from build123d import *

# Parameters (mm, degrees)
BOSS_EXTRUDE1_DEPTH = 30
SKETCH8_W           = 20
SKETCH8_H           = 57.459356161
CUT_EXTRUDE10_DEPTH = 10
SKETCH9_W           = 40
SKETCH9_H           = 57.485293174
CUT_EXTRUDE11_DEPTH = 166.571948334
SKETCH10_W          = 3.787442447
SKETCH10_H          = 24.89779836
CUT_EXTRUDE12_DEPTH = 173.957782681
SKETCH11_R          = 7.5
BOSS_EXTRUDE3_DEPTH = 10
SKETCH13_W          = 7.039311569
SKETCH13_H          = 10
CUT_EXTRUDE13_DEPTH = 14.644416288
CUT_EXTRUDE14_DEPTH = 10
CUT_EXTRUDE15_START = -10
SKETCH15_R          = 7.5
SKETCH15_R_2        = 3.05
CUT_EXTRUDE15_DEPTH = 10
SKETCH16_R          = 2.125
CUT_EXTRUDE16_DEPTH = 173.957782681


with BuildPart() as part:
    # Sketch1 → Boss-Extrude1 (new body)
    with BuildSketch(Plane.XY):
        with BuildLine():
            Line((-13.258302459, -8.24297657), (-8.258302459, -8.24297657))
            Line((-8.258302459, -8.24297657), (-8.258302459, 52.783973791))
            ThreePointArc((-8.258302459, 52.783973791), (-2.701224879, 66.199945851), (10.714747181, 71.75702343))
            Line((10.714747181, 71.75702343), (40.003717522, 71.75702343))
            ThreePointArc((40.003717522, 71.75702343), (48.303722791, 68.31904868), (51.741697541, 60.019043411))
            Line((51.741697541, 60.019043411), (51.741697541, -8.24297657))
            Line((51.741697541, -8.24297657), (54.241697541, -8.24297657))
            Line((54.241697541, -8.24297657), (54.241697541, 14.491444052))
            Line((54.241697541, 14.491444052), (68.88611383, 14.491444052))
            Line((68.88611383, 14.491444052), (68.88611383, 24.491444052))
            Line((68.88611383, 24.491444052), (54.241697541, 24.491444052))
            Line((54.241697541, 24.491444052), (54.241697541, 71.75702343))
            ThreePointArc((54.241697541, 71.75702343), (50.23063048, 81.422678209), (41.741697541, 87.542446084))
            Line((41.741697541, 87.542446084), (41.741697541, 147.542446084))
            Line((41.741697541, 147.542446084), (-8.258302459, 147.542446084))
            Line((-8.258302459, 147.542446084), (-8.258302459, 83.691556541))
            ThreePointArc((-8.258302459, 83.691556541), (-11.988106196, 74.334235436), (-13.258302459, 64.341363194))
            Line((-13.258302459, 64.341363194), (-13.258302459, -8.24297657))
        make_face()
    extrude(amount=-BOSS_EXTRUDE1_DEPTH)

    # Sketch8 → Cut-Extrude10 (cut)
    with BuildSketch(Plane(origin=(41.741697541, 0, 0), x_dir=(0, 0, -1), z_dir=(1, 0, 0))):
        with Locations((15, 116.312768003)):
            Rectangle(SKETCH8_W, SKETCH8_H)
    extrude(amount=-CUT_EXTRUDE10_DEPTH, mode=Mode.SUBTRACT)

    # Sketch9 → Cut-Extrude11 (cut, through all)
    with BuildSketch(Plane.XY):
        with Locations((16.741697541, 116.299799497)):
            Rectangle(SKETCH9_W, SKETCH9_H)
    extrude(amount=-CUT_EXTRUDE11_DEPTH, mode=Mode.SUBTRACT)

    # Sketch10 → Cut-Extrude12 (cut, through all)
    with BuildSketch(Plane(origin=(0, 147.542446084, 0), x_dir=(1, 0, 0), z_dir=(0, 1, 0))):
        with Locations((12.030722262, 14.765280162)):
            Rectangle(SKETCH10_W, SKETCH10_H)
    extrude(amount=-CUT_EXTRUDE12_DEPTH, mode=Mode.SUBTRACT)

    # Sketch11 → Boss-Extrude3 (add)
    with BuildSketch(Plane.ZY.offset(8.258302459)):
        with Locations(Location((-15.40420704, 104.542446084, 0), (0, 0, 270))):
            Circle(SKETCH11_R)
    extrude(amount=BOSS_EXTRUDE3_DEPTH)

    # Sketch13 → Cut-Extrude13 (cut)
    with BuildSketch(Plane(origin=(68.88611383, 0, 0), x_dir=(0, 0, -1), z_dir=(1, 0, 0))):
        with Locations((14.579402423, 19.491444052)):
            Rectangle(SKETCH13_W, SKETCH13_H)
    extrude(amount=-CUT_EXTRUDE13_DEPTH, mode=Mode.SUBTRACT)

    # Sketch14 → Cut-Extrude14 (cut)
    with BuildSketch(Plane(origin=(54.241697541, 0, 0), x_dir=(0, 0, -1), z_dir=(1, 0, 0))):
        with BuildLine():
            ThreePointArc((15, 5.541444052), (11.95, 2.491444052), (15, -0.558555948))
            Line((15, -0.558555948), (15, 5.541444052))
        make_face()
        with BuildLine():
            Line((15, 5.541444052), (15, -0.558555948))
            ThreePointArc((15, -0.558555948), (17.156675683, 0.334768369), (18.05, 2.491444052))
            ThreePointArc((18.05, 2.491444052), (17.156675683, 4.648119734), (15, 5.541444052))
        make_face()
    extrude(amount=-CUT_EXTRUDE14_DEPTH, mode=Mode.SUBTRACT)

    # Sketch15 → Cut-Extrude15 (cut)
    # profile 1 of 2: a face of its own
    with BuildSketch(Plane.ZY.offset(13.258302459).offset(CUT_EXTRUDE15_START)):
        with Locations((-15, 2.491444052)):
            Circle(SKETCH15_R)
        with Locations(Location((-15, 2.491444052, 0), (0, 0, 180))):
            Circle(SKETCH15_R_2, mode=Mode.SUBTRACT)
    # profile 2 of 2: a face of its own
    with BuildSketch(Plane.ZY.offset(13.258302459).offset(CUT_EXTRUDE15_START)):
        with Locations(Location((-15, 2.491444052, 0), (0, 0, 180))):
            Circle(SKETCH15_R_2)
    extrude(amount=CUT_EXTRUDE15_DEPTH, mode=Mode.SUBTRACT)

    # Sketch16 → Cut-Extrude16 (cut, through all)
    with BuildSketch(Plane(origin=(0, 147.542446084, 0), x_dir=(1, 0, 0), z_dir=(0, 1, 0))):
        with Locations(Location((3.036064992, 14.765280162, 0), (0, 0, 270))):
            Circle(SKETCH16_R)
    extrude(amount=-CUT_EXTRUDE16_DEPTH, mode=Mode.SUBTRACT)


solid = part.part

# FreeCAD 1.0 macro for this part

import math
import FreeCAD as App
import Part
import Sketcher
from FreeCAD import Vector
Q = App.Units.Quantity

doc = App.newDocument("Part")
body = doc.addObject("PartDesign::Body", "Body")

# Sketch on XY plane
sketch1 = body.newObject("Sketcher::SketchObject", "Sketch")
sketch1.AttachmentSupport = (doc.getObject("XY_Plane"), [""])
sketch1.MapMode = "FlatFace"
sketch1.addGeometry([
    Part.LineSegment(Vector(-13.3, -8.2, 0), Vector(-8.3, -8.2, 0)),  # 0
    Part.LineSegment(Vector(-8.3, -8.2, 0), Vector(-8.3, 52.8, 0)),  # 1
    Part.ArcOfCircle(Part.Circle(Vector(10.7, 52.8, 0), Vector(0, 0, 1), 19), math.radians(90), math.radians(180)),  # 2
    Part.LineSegment(Vector(10.7, 71.8, 0), Vector(40, 71.8, 0)),  # 3
    Part.ArcOfCircle(Part.Circle(Vector(40, 60, 0), Vector(0, 0, 1), 11.7), math.radians(0), math.radians(90)),  # 4
    Part.LineSegment(Vector(51.7, 60, 0), Vector(51.7, -8.2, 0)),  # 5
    Part.LineSegment(Vector(51.7, -8.2, 0), Vector(54.2, -8.2, 0)),  # 6
    Part.LineSegment(Vector(54.2, -8.2, 0), Vector(54.2, 14.5, 0)),  # 7
    Part.LineSegment(Vector(54.2, 14.5, 0), Vector(68.9, 14.5, 0)),  # 8
    Part.LineSegment(Vector(68.9, 14.5, 0), Vector(68.9, 24.5, 0)),  # 9
    Part.LineSegment(Vector(68.9, 24.5, 0), Vector(54.2, 24.5, 0)),  # 10
    Part.LineSegment(Vector(54.2, 24.5, 0), Vector(54.2, 71.8, 0)),  # 11
    Part.ArcOfCircle(Part.Circle(Vector(35.2, 69.5, 0), Vector(0, 0, 1), 19.2), math.radians(7), math.radians(70)),  # 12
    Part.LineSegment(Vector(41.7, 87.5, 0), Vector(41.7, 147.5, 0)),  # 13
    Part.LineSegment(Vector(41.7, 147.5, 0), Vector(-8.3, 147.5, 0)),  # 14
    Part.LineSegment(Vector(-8.3, 147.5, 0), Vector(-8.3, 83.7, 0)),  # 15
    Part.ArcOfCircle(Part.Circle(Vector(26.7, 64.3, 0), Vector(0, 0, 1), 39.9), math.radians(151), math.radians(180)),  # 16
    Part.LineSegment(Vector(-13.3, 64.3, 0), Vector(-13.3, -8.2, 0)),  # 17
], False)
sketch1.addConstraint([
    Sketcher.Constraint("Coincident", 0, 2, 1, 1),
    Sketcher.Constraint("Tangent", 1, 2, 2, 2),
    Sketcher.Constraint("Tangent", 2, 1, 3, 1),
    Sketcher.Constraint("Tangent", 3, 2, 4, 2),
    Sketcher.Constraint("Tangent", 4, 1, 5, 1),
    Sketcher.Constraint("Coincident", 5, 2, 6, 1),
    Sketcher.Constraint("Coincident", 6, 2, 7, 1),
    Sketcher.Constraint("Coincident", 7, 2, 8, 1),
    Sketcher.Constraint("Coincident", 8, 2, 9, 1),
    Sketcher.Constraint("Coincident", 9, 2, 10, 1),
    Sketcher.Constraint("Coincident", 10, 2, 11, 1),
    Sketcher.Constraint("Coincident", 11, 2, 12, 1),
    Sketcher.Constraint("Coincident", 12, 2, 13, 1),
    Sketcher.Constraint("Coincident", 13, 2, 14, 1),
    Sketcher.Constraint("Coincident", 14, 2, 15, 1),
    Sketcher.Constraint("Coincident", 15, 2, 16, 1),
    Sketcher.Constraint("Tangent", 16, 2, 17, 1),
    Sketcher.Constraint("Coincident", 17, 2, 0, 1),
    Sketcher.Constraint("Horizontal", 0),
    Sketcher.Constraint("Vertical", 1),
    Sketcher.Constraint("Horizontal", 3),
    Sketcher.Constraint("Vertical", 5),
    Sketcher.Constraint("Horizontal", 6),
    Sketcher.Constraint("Vertical", 7),
    Sketcher.Constraint("Horizontal", 8),
    Sketcher.Constraint("Vertical", 9),
    Sketcher.Constraint("Horizontal", 10),
    Sketcher.Constraint("Vertical", 11),
    Sketcher.Constraint("Vertical", 13),
    Sketcher.Constraint("Horizontal", 14),
    Sketcher.Constraint("Vertical", 15),
    Sketcher.Constraint("Vertical", 17),
    Sketcher.Constraint("Horizontal", 0, 2, 5, 2),
    Sketcher.Constraint("Horizontal", 3, 2, 11, 2),
    Sketcher.Constraint("Vertical", 7, 2, 10, 2),
    Sketcher.Constraint("Vertical", 1, 2, 14, 2),
    Sketcher.Constraint("DistanceX", 0, 1, 0, 2, Q("5 mm")),
    Sketcher.Constraint("DistanceX", 14, 2, 14, 1, Q("50 mm")),
    Sketcher.Constraint("DistanceY", 9, 1, 9, 2, Q("10 mm")),
    Sketcher.Constraint("DistanceY", 13, 1, 13, 2, Q("60 mm")),
    Sketcher.Constraint("DistanceX", 6, 1, 6, 2, Q("2.5 mm")),
    Sketcher.Constraint("Radius", 16, Q("39.942998 mm")),
    Sketcher.Constraint("DistanceX", 0, 2, 5, 2, Q("60 mm")),
    Sketcher.Constraint("Radius", 2, Q("18.97305 mm")),
    Sketcher.Constraint("Radius", 4, Q("11.73798 mm")),
    Sketcher.Constraint("Radius", 12, Q("19.173228 mm")),
    Sketcher.Constraint("DistanceY", 1, 1, 1, 2, Q("61.02695 mm")),
    Sketcher.Constraint("DistanceY", 7, 1, 7, 2, Q("22.734421 mm")),
    Sketcher.Constraint("DistanceY", 15, 2, 15, 1, Q("63.85089 mm")),
    Sketcher.Constraint("DistanceY", 17, 2, 17, 1, Q("72.58434 mm")),
    Sketcher.Constraint("DistanceX", 8, 1, 8, 2, Q("14.644416 mm")),
    Sketcher.Constraint("DistanceY", -1, 1, 12, 3, Q("69.519922 mm")),
    Sketcher.Constraint("DistanceX", -1, 1, 2, 3, Q("10.714747 mm")),
])
pad1 = body.newObject("PartDesign::Pad", "Pad")
pad1.Profile = sketch1
pad1.Length = 30
pad1.Reversed = True

# Sketch on YZ plane
sketch2 = body.newObject("Sketcher::SketchObject", "Sketch001")
sketch2.AttachmentSupport = (doc.getObject("YZ_Plane"), [""])
sketch2.MapMode = "FlatFace"
sketch2.AttachmentOffset = App.Placement(Vector(0, 0, 41.741698), App.Rotation())
sketch2.addGeometry([
    Part.LineSegment(Vector(145, -5, 0), Vector(88, -5, 0)),
    Part.LineSegment(Vector(88, -5, 0), Vector(88, -25, 0)),
    Part.LineSegment(Vector(88, -25, 0), Vector(145, -25, 0)),
    Part.LineSegment(Vector(145, -25, 0), Vector(145, -5, 0)),
], False)
sketch2.addConstraint([
    Sketcher.Constraint("Coincident", 0, 2, 1, 1),
    Sketcher.Constraint("Coincident", 1, 2, 2, 1),
    Sketcher.Constraint("Coincident", 2, 2, 3, 1),
    Sketcher.Constraint("Coincident", 3, 2, 0, 1),
    Sketcher.Constraint("Horizontal", 0),
    Sketcher.Constraint("Vertical", 1),
    Sketcher.Constraint("Horizontal", 2),
    Sketcher.Constraint("Vertical", 3),
    Sketcher.Constraint("DistanceY", 1, 2, 1, 1, Q("20 mm")),
    Sketcher.Constraint("DistanceY", 0, 2, -1, 1, Q("5 mm")),
    Sketcher.Constraint("DistanceX", 0, 2, 0, 1, Q("57.459356 mm")),
    Sketcher.Constraint("DistanceX", -1, 1, 0, 2, Q("87.58309 mm")),
])
pocket1 = body.newObject("PartDesign::Pocket", "Pocket")
pocket1.Profile = sketch2
pocket1.Length = 10

# Sketch on XY plane
sketch3 = body.newObject("Sketcher::SketchObject", "Sketch002")
sketch3.AttachmentSupport = (doc.getObject("XY_Plane"), [""])
sketch3.MapMode = "FlatFace"
sketch3.addGeometry([
    Part.LineSegment(Vector(-3, 145, 0), Vector(-3, 88, 0)),
    Part.LineSegment(Vector(-3, 88, 0), Vector(37, 88, 0)),
    Part.LineSegment(Vector(37, 88, 0), Vector(37, 145, 0)),
    Part.LineSegment(Vector(37, 145, 0), Vector(-3, 145, 0)),
], False)
sketch3.addConstraint([
    Sketcher.Constraint("Coincident", 0, 2, 1, 1),
    Sketcher.Constraint("Coincident", 1, 2, 2, 1),
    Sketcher.Constraint("Coincident", 2, 2, 3, 1),
    Sketcher.Constraint("Coincident", 3, 2, 0, 1),
    Sketcher.Constraint("Vertical", 0),
    Sketcher.Constraint("Horizontal", 1),
    Sketcher.Constraint("Vertical", 2),
    Sketcher.Constraint("Horizontal", 3),
    Sketcher.Constraint("DistanceX", 1, 1, 1, 2, Q("40 mm")),
    Sketcher.Constraint("DistanceY", 0, 2, 0, 1, Q("57.485293 mm")),
    Sketcher.Constraint("DistanceX", 0, 2, -1, 1, Q("3.258302 mm")),
    Sketcher.Constraint("DistanceY", -1, 1, 0, 2, Q("87.557153 mm")),
])
pocket2 = body.newObject("PartDesign::Pocket", "Pocket001")
pocket2.Profile = sketch3
pocket2.Type = "ThroughAll"

# Sketch on XZ plane
sketch4 = body.newObject("Sketcher::SketchObject", "Sketch003")
sketch4.AttachmentSupport = (doc.getObject("XZ_Plane"), [""])
sketch4.MapMode = "FlatFace"
sketch4.AttachmentOffset = App.Placement(Vector(0, 0, -147.542446), App.Rotation())
sketch4.addGeometry([
    Part.LineSegment(Vector(10.1, -27.2, 0), Vector(10.1, -2.3, 0)),
    Part.LineSegment(Vector(10.1, -2.3, 0), Vector(13.9, -2.3, 0)),
    Part.LineSegment(Vector(13.9, -2.3, 0), Vector(13.9, -27.2, 0)),
    Part.LineSegment(Vector(13.9, -27.2, 0), Vector(10.1, -27.2, 0)),
], False)
sketch4.addConstraint([
    Sketcher.Constraint("Coincident", 0, 2, 1, 1),
    Sketcher.Constraint("Coincident", 1, 2, 2, 1),
    Sketcher.Constraint("Coincident", 2, 2, 3, 1),
    Sketcher.Constraint("Coincident", 3, 2, 0, 1),
    Sketcher.Constraint("Vertical", 0),
    Sketcher.Constraint("Horizontal", 1),
    Sketcher.Constraint("Vertical", 2),
    Sketcher.Constraint("Horizontal", 3),
    Sketcher.Constraint("DistanceY", 0, 1, 0, 2, Q("24.897798 mm")),
    Sketcher.Constraint("DistanceX", -1, 1, 0, 2, Q("10.137001 mm")),
    Sketcher.Constraint("DistanceX", 1, 1, 1, 2, Q("3.787442 mm")),
    Sketcher.Constraint("DistanceY", 0, 2, -1, 1, Q("2.316381 mm")),
])
pocket3 = body.newObject("PartDesign::Pocket", "Pocket002")
pocket3.Profile = sketch4
pocket3.Type = "ThroughAll"
pocket3.Reversed = True

# Sketch on YZ plane
sketch5 = body.newObject("Sketcher::SketchObject", "Sketch004")
sketch5.AttachmentSupport = (doc.getObject("YZ_Plane"), [""])
sketch5.MapMode = "FlatFace"
sketch5.AttachmentOffset = App.Placement(Vector(0, 0, -8.258302), App.Rotation())
sketch5.addGeometry(Part.Circle(Vector(105, -15, 0), Vector(0, 0, 1), 8), False)
sketch5.addConstraint([
    Sketcher.Constraint("Diameter", 0, Q("15 mm")),
    Sketcher.Constraint("DistanceX", -1, 1, 0, 3, Q("104.542446 mm")),
    Sketcher.Constraint("DistanceY", 0, 3, -1, 1, Q("15.404207 mm")),
])
pad2 = body.newObject("PartDesign::Pad", "Pad001")
pad2.Profile = sketch5
pad2.Length = 10
pad2.Reversed = True

# Sketch on YZ plane
sketch6 = body.newObject("Sketcher::SketchObject", "Sketch005")
sketch6.AttachmentSupport = (doc.getObject("YZ_Plane"), [""])
sketch6.MapMode = "FlatFace"
sketch6.AttachmentOffset = App.Placement(Vector(0, 0, 68.886114), App.Rotation())
sketch6.addGeometry([
    Part.LineSegment(Vector(24, -11, 0), Vector(14, -11, 0)),
    Part.LineSegment(Vector(14, -11, 0), Vector(14, -18, 0)),
    Part.LineSegment(Vector(14, -18, 0), Vector(24, -18, 0)),
    Part.LineSegment(Vector(24, -18, 0), Vector(24, -11, 0)),
], False)
sketch6.addConstraint([
    Sketcher.Constraint("Coincident", 0, 2, 1, 1),
    Sketcher.Constraint("Coincident", 1, 2, 2, 1),
    Sketcher.Constraint("Coincident", 2, 2, 3, 1),
    Sketcher.Constraint("Coincident", 3, 2, 0, 1),
    Sketcher.Constraint("Horizontal", 0),
    Sketcher.Constraint("Vertical", 1),
    Sketcher.Constraint("Horizontal", 2),
    Sketcher.Constraint("Vertical", 3),
    Sketcher.Constraint("DistanceX", 0, 2, 0, 1, Q("10 mm")),
    Sketcher.Constraint("DistanceY", 1, 2, 1, 1, Q("7.039312 mm")),
    Sketcher.Constraint("DistanceY", 1, 2, -1, 1, Q("18.099058 mm")),
    Sketcher.Constraint("DistanceX", -1, 1, 0, 2, Q("14.491444 mm")),
])
pocket4 = body.newObject("PartDesign::Pocket", "Pocket003")
pocket4.Profile = sketch6
pocket4.Length = 14.644416

# Sketch on YZ plane
sketch7 = body.newObject("Sketcher::SketchObject", "Sketch006")
sketch7.AttachmentSupport = (doc.getObject("YZ_Plane"), [""])
sketch7.MapMode = "FlatFace"
sketch7.AttachmentOffset = App.Placement(Vector(0, 0, 54.241698), App.Rotation())
sketch7.addGeometry([
    Part.ArcOfCircle(Part.Circle(Vector(2.5, -15, 0), Vector(0, 0, 1), 3), math.radians(0), math.radians(180)),
    Part.ArcOfCircle(Part.Circle(Vector(2.5, -15, 0), Vector(0, 0, 1), 3), math.radians(180), math.radians(270)),
    Part.ArcOfCircle(Part.Circle(Vector(2.5, -15, 0), Vector(0, 0, 1), 3), math.radians(-90), math.radians(0)),
], False)
sketch7.addConstraint([
    Sketcher.Constraint("Tangent", 0, 2, 1, 1),
    Sketcher.Constraint("Tangent", 1, 2, 2, 1),
    Sketcher.Constraint("Tangent", 2, 2, 0, 1),
    Sketcher.Constraint("Horizontal", 2, 3, 0, 2),
    Sketcher.Constraint("Horizontal", 0, 2, 2, 2),
    Sketcher.Constraint("Vertical", 2, 3, 1, 2),
    Sketcher.Constraint("Radius", 0, Q("3.05 mm")),
    Sketcher.Constraint("DistanceY", 0, 3, -1, 1, Q("15 mm")),
    Sketcher.Constraint("DistanceX", -1, 1, 0, 3, Q("2.491444 mm")),
])
pocket5 = body.newObject("PartDesign::Pocket", "Pocket004")
pocket5.Profile = sketch7
pocket5.Length = 10

# Sketch on YZ plane
sketch8 = body.newObject("Sketcher::SketchObject", "Sketch007")
sketch8.AttachmentSupport = (doc.getObject("YZ_Plane"), [""])
sketch8.MapMode = "FlatFace"
sketch8.AttachmentOffset = App.Placement(Vector(0, 0, -3.258302), App.Rotation())
sketch8.addGeometry(Part.Circle(Vector(2, -15, 0), Vector(0, 0, 1), 8), False)
sketch8.addConstraint([
    Sketcher.Constraint("Diameter", 0, Q("15 mm")),
    Sketcher.Constraint("DistanceY", 0, 3, -1, 1, Q("15 mm")),
    Sketcher.Constraint("DistanceX", -1, 1, 0, 3, Q("2.491444 mm")),
])
pocket6 = body.newObject("PartDesign::Pocket", "Pocket005")
pocket6.Profile = sketch8
pocket6.Length = 10

# Sketch on XZ plane
sketch9 = body.newObject("Sketcher::SketchObject", "Sketch008")
sketch9.AttachmentSupport = (doc.getObject("XZ_Plane"), [""])
sketch9.MapMode = "FlatFace"
sketch9.AttachmentOffset = App.Placement(Vector(0, 0, -147.542446), App.Rotation())
sketch9.addGeometry(Part.Circle(Vector(3, -14.8, 0), Vector(0, 0, 1), 2.1), False)
sketch9.addConstraint([
    Sketcher.Constraint("Diameter", 0, Q("4.25 mm")),
    Sketcher.Constraint("DistanceY", 0, 3, -1, 1, Q("14.76528 mm")),
    Sketcher.Constraint("DistanceX", -1, 1, 0, 3, Q("3.036065 mm")),
])
pocket7 = body.newObject("PartDesign::Pocket", "Pocket006")
pocket7.Profile = sketch9
pocket7.Type = "ThroughAll"
pocket7.Reversed = True

doc.recompute()
